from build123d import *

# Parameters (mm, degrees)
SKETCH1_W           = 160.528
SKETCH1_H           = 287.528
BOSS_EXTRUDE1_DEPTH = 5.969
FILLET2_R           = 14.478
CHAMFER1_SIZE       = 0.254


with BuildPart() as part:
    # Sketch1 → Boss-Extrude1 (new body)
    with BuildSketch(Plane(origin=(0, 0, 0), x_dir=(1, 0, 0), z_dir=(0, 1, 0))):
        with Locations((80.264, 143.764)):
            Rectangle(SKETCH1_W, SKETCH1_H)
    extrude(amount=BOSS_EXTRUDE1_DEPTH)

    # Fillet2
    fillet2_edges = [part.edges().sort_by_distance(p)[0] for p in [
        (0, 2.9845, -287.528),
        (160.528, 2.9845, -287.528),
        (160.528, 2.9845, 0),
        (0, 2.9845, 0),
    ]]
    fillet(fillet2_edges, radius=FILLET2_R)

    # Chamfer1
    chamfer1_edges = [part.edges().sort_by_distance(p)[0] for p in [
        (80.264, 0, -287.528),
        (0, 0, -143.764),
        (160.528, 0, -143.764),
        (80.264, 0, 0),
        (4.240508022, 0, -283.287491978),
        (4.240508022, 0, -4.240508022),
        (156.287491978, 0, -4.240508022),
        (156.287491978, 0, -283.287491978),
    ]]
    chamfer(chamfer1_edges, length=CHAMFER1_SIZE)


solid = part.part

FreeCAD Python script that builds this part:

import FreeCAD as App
import Part
import Sketcher
from FreeCAD import Vector
Q = App.Units.Quantity


def edges_at(feature, points):
    """Names of the edges that pass closest to the given points."""
    edges = feature.Shape.Edges
    near = lambda p: min(range(len(edges)), key=lambda i: edges[i].distToShape(Part.Vertex(*p))[0])
    return sorted({f"Edge{near(p) + 1}" for p in points})


def add_polygon(sketch, points):
    """Adds a closed chain of lines whose ends are joined by coincident constraints."""
    first, n = sketch.GeometryCount, len(points)
    for a, b in zip(points, points[1:] + points[:1]):
        sketch.addGeometry(Part.LineSegment(App.Vector(*a, 0), App.Vector(*b, 0)), False)
    for i in range(n):
        sketch.addConstraint(Sketcher.Constraint("Coincident", first + i, 2, first + (i + 1) % n, 1))

doc = App.newDocument("Part")
body = doc.addObject("PartDesign::Body", "Body")

sketch1 = body.newObject("Sketcher::SketchObject", "Sketch")
sketch1.AttachmentSupport = (doc.getObject("XZ_Plane"), [""])
sketch1.MapMode = "FlatFace"
add_polygon(sketch1, [(0, -288), (0, 0), (161, 0), (161, -288)])
sketch1.addConstraint(Sketcher.Constraint("Vertical", 0))
sketch1.addConstraint(Sketcher.Constraint("Horizontal", 1))
sketch1.addConstraint(Sketcher.Constraint("Vertical", 2))
sketch1.addConstraint(Sketcher.Constraint("Horizontal", 3))
sketch1.addConstraint(Sketcher.Constraint("Coincident", 0, 2, -1, 1))
sketch1.addConstraint(Sketcher.Constraint("DistanceX", 1, 1, 1, 2, Q("6.32 in")))
sketch1.addConstraint(Sketcher.Constraint("DistanceY", 0, 1, 0, 2, Q("11.32 in")))
pad1 = body.newObject("PartDesign::Pad", "Pad")
pad1.Profile = sketch1
pad1.Length = Q("0.235 in")
pad1.Reversed = True
doc.recompute()

fillet = body.newObject("PartDesign::Fillet", "Fillet")
fillet.Base = (pad1, edges_at(pad1, [
    (0, 2.985, -287.528),
    (160.528, 2.985, -287.528),
    (160.528, 2.985, 0),
    (0, 2.985, 0),
]))
fillet.Radius = Q("0.57 in")
doc.recompute()

chamfer = body.newObject("PartDesign::Chamfer", "Chamfer")
chamfer.Base = (fillet, edges_at(fillet, [
    (80.264, 0, -287.528),
    (0, 0, -143.764),
    (160.528, 0, -143.764),
    (80.264, 0, 0),
    (4.241, 0, -283.287),
    (4.241, 0, -4.241),
    (156.287, 0, -4.241),
    (156.287, 0, -283.287),
]))
chamfer.Size = Q("0.01 in")

doc.recompute()
